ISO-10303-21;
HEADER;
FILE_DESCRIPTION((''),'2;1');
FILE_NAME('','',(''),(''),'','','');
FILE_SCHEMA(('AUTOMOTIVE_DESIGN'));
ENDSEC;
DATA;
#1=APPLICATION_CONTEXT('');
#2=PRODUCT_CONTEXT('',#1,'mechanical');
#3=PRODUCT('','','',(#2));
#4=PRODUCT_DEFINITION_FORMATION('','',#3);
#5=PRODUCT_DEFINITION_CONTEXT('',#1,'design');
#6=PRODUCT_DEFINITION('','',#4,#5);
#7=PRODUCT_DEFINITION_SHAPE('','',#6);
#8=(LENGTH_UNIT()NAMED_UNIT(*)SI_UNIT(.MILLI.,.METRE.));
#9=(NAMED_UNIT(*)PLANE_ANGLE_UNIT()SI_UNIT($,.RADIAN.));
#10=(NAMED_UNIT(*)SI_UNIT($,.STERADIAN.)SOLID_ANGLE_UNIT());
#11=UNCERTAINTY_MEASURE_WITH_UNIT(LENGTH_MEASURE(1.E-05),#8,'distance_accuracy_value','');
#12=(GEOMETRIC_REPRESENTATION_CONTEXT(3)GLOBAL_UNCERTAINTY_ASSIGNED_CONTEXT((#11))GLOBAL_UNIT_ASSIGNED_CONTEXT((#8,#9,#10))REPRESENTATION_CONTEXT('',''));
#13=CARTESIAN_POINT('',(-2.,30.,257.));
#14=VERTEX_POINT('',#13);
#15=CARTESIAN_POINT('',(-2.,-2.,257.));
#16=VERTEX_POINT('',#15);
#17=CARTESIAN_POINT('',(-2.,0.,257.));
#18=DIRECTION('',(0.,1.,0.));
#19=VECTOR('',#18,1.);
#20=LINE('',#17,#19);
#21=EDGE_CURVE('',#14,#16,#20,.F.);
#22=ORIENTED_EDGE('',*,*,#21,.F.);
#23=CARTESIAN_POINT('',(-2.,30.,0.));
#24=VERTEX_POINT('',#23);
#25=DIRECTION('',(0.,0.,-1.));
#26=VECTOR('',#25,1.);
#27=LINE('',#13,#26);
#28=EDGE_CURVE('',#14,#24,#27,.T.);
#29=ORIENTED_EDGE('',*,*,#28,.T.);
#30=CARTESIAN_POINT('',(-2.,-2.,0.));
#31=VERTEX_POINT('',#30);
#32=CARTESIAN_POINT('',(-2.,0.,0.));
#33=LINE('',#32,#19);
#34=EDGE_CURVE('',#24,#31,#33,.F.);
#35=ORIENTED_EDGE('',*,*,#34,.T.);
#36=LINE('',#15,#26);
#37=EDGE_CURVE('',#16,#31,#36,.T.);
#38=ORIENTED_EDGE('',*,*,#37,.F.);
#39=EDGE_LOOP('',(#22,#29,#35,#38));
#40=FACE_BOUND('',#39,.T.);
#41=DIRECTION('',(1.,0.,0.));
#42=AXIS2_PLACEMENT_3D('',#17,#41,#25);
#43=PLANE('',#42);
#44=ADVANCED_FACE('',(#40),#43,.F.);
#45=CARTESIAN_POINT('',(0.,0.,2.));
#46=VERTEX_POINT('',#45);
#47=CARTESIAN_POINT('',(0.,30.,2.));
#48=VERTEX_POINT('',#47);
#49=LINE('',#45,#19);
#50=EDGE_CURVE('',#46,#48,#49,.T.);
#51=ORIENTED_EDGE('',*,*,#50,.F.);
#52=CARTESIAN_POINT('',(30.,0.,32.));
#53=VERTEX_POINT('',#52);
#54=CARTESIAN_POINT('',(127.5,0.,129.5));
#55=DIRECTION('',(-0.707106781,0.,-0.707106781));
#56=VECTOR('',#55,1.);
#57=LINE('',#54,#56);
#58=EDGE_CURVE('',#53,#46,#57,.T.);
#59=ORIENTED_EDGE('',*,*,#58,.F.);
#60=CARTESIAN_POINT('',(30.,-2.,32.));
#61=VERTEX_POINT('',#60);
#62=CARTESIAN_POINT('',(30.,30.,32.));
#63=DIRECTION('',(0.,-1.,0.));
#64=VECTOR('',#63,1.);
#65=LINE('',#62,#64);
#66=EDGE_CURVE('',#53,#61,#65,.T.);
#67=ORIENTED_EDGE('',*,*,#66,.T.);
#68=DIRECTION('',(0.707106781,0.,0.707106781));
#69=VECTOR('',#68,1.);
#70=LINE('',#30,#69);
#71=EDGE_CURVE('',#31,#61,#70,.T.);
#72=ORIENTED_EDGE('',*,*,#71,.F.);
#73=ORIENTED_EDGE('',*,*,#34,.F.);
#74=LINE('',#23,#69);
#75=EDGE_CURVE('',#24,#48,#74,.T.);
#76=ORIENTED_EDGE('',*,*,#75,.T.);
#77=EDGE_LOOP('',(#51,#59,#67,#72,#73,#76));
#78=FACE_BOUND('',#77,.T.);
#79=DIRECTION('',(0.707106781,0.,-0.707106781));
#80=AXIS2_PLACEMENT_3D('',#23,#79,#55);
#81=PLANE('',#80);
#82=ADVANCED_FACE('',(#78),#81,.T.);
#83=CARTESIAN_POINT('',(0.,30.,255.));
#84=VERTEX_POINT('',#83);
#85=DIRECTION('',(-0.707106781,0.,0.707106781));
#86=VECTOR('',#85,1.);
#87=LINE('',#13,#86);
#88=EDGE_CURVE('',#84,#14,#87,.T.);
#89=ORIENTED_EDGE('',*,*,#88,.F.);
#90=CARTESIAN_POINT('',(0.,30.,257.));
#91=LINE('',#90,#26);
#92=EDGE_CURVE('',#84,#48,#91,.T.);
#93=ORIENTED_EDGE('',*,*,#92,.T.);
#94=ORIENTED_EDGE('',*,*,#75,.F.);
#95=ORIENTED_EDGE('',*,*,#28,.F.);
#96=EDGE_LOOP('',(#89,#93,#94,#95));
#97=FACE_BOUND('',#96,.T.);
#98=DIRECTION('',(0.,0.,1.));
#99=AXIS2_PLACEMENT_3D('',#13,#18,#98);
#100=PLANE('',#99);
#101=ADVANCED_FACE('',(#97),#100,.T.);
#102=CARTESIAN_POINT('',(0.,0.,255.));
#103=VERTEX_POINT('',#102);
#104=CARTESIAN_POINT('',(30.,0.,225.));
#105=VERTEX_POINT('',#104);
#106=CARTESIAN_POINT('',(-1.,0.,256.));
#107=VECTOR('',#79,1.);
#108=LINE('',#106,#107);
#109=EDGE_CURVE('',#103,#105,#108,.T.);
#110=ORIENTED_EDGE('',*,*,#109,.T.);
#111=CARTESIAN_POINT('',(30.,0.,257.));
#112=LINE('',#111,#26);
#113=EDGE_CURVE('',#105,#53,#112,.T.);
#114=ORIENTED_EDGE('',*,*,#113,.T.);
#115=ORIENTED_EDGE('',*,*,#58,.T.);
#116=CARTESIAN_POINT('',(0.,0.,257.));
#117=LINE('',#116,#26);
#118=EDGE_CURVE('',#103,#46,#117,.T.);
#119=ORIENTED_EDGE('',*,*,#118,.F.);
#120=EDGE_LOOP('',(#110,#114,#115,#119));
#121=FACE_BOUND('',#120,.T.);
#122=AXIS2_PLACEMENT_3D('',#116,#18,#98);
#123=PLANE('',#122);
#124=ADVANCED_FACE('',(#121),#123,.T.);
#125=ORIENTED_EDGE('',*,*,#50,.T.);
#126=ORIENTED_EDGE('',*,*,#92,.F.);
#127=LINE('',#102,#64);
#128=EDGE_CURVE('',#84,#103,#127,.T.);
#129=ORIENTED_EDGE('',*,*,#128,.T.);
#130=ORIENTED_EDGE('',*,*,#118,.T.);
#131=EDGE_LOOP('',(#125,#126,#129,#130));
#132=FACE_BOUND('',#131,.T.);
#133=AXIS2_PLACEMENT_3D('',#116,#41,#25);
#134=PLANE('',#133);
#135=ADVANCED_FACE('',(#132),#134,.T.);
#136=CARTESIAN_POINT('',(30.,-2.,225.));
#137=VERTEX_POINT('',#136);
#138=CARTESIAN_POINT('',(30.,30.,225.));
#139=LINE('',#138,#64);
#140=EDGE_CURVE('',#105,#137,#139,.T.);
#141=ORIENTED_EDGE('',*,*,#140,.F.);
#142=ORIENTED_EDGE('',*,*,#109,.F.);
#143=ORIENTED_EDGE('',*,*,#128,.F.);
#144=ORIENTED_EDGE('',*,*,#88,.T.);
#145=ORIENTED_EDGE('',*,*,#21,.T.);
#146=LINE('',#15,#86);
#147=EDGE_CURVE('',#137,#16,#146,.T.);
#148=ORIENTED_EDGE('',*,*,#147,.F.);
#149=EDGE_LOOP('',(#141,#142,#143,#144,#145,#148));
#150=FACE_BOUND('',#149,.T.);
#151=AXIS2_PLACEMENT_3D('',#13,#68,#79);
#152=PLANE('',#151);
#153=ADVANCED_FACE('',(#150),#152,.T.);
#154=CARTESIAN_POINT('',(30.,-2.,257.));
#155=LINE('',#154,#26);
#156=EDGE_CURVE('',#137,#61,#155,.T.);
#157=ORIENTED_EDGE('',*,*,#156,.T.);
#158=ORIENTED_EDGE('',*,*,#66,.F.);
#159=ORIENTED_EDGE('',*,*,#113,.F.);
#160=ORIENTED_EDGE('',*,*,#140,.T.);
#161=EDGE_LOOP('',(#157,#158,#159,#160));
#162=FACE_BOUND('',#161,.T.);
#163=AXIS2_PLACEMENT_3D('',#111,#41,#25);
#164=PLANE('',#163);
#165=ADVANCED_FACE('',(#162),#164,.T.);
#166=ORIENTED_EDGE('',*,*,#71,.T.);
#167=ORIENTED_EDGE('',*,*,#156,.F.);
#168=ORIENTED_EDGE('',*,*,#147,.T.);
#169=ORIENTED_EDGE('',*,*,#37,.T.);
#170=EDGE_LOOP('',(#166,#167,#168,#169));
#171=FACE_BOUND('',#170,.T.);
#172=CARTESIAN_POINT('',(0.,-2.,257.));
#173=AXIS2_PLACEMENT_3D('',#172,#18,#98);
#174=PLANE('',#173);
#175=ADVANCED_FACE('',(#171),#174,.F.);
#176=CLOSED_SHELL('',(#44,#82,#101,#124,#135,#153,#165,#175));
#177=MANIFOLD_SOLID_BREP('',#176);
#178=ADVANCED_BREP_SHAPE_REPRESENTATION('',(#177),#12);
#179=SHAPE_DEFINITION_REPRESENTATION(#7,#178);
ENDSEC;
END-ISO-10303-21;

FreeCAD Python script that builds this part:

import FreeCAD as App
import Part
import Sketcher

V = App.Vector


def add_polygon(sketch, points):
    """Adds a closed chain of lines whose ends are joined by coincident constraints."""
    first, n = sketch.GeometryCount, len(points)
    for a, b in zip(points, points[1:] + points[:1]):
        sketch.addGeometry(Part.LineSegment(App.Vector(*a, 0), App.Vector(*b, 0)), False)
    for i in range(n):
        sketch.addConstraint(Sketcher.Constraint("Coincident", first + i, 2, first + (i + 1) % n, 1))

doc = App.newDocument("Part")
body = doc.addObject("PartDesign::Body", "Body")

sketch1 = body.newObject("Sketcher::SketchObject", "Sketch")
sketch1.AttachmentSupport = (doc.getObject("XY_Plane"), [""])
sketch1.MapMode = "FlatFace"
add_polygon(sketch1, [(30, 0), (0, 0), (0, 30), (-2, 30), (-2, -2), (30, -2)])
sketch1.addConstraint([
    Sketcher.Constraint("Horizontal", 0),
    Sketcher.Constraint("Vertical", 1),
    Sketcher.Constraint("Horizontal", 2),
    Sketcher.Constraint("Vertical", 3),
    Sketcher.Constraint("Horizontal", 4),
    Sketcher.Constraint("Vertical", 5),
    Sketcher.Constraint("Coincident", 0, 2, -1, 1),
    Sketcher.Constraint("Equal", 0, 1),
    Sketcher.Constraint("Equal", 4, 3),
    Sketcher.Constraint("DistanceX", 0, 2, 0, 1, 30.0),
    Sketcher.Constraint("DistanceX", 2, 2, 2, 1, 2.0),
])
pad1 = body.newObject("PartDesign::Pad", "Pad")
pad1.Profile = sketch1
pad1.Length = 257

sketch2 = body.newObject("Sketcher::SketchObject", "Sketch001")
sketch2.AttachmentSupport = (doc.getObject("XZ_Plane"), [""])
sketch2.MapMode = "FlatFace"
sketch2.AttachmentOffset = App.Placement(V(0, 0, 2), App.Rotation())
add_polygon(sketch2, [(-2, 0), (30, 32), (30, 0)])
add_polygon(sketch2, [(30, 257), (30, 225), (-2, 257)])
sketch2.addConstraint([
    Sketcher.Constraint("Vertical", 1),
    Sketcher.Constraint("Horizontal", 2),
    Sketcher.Constraint("Vertical", 3),
    Sketcher.Constraint("Horizontal", 5),
    Sketcher.Constraint("PointOnObject", 1, 2, -1),
    Sketcher.Constraint("Perpendicular", 0, 4),
    Sketcher.Constraint("Vertical", 1, 2, 3, 2),
    Sketcher.Constraint("Vertical", 2, 2, 4, 2),
    Sketcher.Constraint("Equal", 5, 1),
    Sketcher.Constraint("DistanceX", 2, 2, 2, 1, 32.0),
    Sketcher.Constraint("DistanceX", -1, 1, 0, 2, 30.0),
    Sketcher.Constraint("DistanceY", -1, 1, 3, 2, 225.0),
])
pocket1 = body.newObject("PartDesign::Pocket", "Pocket")
pocket1.Profile = sketch2
pocket1.Type = "ThroughAll"

doc.recompute()
